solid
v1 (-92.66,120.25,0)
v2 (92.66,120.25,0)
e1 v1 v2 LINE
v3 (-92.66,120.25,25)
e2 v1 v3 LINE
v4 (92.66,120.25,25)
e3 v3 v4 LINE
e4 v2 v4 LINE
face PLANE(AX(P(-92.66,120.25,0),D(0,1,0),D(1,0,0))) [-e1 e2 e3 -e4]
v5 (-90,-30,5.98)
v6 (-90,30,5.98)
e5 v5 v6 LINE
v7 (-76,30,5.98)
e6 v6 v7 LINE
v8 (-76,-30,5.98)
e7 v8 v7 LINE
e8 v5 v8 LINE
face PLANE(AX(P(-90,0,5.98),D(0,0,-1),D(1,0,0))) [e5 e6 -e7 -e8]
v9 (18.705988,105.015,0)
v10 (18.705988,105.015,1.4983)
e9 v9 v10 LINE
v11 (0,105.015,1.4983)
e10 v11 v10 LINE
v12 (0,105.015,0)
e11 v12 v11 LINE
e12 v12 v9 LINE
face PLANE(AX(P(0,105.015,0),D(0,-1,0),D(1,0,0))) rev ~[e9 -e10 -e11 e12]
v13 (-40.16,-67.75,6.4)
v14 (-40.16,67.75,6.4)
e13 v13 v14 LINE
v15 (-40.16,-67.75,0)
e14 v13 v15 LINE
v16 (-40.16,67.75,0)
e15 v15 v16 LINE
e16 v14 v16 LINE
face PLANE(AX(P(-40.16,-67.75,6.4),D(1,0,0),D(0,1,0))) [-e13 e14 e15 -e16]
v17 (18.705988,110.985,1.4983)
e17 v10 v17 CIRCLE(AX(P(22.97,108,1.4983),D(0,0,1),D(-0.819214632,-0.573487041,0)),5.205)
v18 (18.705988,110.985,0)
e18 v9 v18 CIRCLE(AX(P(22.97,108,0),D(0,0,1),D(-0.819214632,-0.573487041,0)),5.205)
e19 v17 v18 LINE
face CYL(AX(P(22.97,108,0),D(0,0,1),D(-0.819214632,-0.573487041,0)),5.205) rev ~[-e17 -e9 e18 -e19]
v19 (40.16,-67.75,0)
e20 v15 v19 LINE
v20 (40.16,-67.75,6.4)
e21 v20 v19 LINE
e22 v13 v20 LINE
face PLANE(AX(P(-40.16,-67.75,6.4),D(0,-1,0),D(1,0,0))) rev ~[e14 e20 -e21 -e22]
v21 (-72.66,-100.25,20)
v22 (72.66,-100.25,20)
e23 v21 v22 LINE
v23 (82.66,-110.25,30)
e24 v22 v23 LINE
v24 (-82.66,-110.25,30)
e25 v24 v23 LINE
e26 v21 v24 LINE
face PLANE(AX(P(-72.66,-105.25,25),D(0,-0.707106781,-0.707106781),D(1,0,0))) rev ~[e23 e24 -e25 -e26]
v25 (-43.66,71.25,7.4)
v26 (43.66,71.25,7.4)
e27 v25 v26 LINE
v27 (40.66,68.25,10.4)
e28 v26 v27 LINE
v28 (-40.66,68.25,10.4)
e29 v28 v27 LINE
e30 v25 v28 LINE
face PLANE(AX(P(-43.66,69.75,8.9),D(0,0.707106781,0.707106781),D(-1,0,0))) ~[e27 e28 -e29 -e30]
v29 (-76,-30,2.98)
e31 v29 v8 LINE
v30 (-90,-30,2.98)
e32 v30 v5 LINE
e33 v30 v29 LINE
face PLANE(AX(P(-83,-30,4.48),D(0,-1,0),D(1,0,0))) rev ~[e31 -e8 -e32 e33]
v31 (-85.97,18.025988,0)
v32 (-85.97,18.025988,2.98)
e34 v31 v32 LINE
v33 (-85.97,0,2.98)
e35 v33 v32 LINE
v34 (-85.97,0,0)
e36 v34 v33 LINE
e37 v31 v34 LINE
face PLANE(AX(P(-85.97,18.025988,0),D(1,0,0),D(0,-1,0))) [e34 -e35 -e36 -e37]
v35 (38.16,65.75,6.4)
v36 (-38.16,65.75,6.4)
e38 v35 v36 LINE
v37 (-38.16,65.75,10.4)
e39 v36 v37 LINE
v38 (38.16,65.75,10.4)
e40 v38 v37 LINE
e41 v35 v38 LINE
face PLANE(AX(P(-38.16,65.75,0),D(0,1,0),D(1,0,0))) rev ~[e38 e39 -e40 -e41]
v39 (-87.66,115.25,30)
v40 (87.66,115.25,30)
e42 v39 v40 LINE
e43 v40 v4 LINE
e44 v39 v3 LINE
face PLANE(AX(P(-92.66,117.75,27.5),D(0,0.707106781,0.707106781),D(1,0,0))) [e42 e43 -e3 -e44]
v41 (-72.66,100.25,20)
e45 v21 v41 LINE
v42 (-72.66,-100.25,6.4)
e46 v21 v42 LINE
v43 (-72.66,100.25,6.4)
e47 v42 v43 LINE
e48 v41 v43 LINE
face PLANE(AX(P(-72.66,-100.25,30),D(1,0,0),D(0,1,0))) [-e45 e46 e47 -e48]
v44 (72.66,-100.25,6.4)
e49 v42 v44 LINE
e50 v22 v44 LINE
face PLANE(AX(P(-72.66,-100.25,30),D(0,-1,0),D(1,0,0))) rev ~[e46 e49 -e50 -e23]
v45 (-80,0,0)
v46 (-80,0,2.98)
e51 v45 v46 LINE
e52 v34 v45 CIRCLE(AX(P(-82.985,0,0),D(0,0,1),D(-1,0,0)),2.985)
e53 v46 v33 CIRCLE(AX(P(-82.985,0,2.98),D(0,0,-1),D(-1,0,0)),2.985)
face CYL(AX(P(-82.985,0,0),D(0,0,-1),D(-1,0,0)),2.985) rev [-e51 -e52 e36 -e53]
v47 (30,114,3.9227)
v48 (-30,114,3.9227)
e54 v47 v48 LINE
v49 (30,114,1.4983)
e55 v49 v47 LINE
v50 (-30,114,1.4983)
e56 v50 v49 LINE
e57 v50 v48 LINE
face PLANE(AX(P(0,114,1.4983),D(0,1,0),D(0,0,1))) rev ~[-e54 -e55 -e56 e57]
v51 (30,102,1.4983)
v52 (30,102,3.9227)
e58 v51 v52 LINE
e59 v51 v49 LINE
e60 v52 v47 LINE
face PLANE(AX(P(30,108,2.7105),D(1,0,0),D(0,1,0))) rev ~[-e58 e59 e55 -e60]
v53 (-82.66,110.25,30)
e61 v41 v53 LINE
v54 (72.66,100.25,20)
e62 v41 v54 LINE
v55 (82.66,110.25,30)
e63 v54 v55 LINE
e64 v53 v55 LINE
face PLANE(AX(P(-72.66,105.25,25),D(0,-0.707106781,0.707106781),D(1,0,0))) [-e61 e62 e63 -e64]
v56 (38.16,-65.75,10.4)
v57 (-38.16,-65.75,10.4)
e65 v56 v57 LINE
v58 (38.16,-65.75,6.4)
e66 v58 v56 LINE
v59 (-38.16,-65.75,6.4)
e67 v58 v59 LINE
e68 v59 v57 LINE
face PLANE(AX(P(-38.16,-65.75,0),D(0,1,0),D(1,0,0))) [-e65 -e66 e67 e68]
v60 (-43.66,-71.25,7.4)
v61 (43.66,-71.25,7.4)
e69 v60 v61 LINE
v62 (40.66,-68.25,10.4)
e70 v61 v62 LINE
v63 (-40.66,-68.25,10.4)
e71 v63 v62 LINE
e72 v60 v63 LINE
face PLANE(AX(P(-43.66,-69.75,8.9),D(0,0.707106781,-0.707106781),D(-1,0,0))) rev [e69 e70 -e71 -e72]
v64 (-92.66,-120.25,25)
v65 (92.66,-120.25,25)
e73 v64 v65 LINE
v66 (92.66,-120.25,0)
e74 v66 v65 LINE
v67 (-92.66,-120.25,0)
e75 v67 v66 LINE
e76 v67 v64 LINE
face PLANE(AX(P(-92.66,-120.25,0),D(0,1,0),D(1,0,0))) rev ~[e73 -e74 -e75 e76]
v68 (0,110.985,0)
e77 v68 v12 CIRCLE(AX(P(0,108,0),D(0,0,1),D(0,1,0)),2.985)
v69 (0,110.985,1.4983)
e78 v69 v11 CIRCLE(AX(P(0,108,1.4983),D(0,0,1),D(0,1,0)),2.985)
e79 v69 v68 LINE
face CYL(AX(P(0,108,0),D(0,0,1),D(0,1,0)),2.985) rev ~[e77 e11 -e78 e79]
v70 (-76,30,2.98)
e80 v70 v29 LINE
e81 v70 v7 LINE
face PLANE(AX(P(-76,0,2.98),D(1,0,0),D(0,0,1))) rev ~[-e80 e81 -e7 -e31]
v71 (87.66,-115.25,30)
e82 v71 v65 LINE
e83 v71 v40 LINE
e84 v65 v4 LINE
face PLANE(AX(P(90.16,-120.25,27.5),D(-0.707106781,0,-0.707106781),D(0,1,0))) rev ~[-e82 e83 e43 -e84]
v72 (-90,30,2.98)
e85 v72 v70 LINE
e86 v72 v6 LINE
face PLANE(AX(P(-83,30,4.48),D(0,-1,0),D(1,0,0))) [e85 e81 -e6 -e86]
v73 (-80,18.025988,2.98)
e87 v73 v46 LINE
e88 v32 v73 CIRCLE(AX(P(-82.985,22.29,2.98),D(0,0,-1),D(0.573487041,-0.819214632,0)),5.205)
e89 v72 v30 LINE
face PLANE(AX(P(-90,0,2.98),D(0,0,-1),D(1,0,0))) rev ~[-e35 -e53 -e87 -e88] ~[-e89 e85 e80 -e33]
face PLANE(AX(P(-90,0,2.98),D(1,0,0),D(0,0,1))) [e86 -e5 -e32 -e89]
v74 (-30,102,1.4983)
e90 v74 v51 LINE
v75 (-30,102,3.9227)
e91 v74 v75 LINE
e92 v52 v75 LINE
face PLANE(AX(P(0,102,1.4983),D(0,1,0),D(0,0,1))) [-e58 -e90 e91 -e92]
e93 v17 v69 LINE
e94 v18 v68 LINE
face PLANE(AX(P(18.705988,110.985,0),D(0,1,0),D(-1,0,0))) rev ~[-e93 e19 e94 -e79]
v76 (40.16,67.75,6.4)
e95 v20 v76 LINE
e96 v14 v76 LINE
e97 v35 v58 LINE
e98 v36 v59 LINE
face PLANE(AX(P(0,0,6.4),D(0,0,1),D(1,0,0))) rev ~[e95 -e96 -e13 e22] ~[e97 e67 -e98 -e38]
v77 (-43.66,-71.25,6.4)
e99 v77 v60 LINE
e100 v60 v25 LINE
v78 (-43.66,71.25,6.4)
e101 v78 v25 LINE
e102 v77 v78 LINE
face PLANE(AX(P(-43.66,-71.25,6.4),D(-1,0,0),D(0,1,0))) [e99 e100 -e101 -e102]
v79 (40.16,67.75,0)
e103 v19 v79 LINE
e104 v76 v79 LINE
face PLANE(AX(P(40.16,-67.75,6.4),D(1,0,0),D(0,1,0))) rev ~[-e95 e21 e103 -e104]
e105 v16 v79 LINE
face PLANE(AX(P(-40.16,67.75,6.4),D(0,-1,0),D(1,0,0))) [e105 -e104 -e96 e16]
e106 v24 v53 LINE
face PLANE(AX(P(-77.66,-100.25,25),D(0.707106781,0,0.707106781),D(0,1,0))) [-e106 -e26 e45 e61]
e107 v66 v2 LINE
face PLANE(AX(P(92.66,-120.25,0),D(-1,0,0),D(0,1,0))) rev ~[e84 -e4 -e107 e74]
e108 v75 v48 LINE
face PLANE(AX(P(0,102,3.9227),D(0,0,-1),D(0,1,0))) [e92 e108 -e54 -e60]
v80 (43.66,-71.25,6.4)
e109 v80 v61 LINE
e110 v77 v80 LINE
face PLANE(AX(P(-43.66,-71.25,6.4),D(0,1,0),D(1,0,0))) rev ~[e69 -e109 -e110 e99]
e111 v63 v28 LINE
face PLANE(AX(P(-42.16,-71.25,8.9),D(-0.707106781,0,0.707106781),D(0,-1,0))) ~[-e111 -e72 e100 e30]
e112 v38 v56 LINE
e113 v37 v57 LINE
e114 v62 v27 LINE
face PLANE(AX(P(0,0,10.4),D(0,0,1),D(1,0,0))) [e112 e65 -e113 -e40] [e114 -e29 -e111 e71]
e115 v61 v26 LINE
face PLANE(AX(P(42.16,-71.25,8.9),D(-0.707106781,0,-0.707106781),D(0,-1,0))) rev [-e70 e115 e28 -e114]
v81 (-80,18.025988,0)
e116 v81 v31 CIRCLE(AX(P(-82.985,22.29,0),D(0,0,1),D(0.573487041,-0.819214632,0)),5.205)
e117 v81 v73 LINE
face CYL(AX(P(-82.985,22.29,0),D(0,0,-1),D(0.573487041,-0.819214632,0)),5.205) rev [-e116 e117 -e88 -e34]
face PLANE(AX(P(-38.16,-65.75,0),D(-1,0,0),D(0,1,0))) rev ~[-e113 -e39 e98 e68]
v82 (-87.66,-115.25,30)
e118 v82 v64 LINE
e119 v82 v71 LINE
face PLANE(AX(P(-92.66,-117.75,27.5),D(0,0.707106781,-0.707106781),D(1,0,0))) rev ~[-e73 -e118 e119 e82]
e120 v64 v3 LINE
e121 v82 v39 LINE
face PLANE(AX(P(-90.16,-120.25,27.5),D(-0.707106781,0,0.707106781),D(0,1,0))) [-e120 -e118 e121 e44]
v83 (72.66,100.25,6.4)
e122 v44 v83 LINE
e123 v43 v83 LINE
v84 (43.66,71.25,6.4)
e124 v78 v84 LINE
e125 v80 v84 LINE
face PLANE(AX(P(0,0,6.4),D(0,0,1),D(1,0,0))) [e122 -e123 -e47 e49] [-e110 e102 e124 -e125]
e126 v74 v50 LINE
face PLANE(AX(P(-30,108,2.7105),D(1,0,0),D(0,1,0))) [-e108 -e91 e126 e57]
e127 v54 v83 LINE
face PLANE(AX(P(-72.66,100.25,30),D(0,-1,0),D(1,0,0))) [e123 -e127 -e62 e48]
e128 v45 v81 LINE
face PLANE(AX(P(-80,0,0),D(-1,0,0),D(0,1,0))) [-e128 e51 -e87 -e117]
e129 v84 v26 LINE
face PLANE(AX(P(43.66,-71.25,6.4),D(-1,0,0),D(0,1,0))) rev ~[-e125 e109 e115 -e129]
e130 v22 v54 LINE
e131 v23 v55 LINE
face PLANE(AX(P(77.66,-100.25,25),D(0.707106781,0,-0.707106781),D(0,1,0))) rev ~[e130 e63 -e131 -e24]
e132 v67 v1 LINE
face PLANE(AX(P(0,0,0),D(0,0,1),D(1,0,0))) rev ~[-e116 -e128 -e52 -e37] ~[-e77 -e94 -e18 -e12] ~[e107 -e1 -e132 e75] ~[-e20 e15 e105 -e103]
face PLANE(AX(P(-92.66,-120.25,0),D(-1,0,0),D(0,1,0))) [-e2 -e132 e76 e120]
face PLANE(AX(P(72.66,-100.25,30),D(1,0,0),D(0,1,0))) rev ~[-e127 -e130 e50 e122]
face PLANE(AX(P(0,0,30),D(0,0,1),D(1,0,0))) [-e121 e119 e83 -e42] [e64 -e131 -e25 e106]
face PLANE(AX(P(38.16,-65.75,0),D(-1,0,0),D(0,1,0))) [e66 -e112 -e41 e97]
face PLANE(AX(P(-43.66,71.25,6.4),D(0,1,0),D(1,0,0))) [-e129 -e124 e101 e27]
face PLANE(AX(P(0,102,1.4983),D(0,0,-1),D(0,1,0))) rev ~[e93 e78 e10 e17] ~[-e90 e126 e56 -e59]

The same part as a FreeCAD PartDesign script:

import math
import FreeCAD as App
import Part
import Sketcher

V = App.Vector


def edges_at(feature, points):
    """Names of the edges that pass closest to the given points."""
    edges = feature.Shape.Edges
    near = lambda p: min(range(len(edges)), key=lambda i: edges[i].distToShape(Part.Vertex(*p))[0])
    return sorted({f"Edge{near(p) + 1}" for p in points})


def add_polygon(sketch, points):
    """Adds a closed chain of lines whose ends are joined by coincident constraints."""
    first, n = sketch.GeometryCount, len(points)
    for a, b in zip(points, points[1:] + points[:1]):
        sketch.addGeometry(Part.LineSegment(App.Vector(*a, 0), App.Vector(*b, 0)), False)
    for i in range(n):
        sketch.addConstraint(Sketcher.Constraint("Coincident", first + i, 2, first + (i + 1) % n, 1))

doc = App.newDocument("Part")
params = doc.addObject("Spreadsheet::Sheet", "Params")
for row, (alias, value) in enumerate([
    ("sketch1_height", "240.5 mm"),
    ("sketch1_width", "185.32 mm"),
    ("pad1_length", "30 mm"),
    ("sketch2_height", "200.5 mm"),
    ("sketch2_width", "145.32 mm"),
    ("pocket1_length", "23.6 mm"),
    ("sketch3_height", "135.5 mm"),
    ("sketch3_width", "80.32 mm"),
    ("pocket2_length", "6.4 mm"),
    ("pocket3_length", "3 mm"),
    ("sketch5_width", "14 mm"),
    ("sketch5_height", "3 mm"),
    ("pocket4_length", "60 mm"),
    ("pocket5_length", "3 mm"),
    ("sketch7_width", "12 mm"),
    ("pocket6_length", "60 mm"),
    ("sketch8_height", "142.5 mm"),
    ("sketch8_width", "87.32 mm"),
    ("pad2_length", "4 mm"),
    ("sketch9_height", "131.5 mm"),
    ("sketch9_width", "76.32 mm"),
    ("chamfer_size", "10 mm"),
    ("chamfer2_size", "5 mm"),
    ("chamfer3_size", "3 mm"),
], start=1):
    params.set(f"A{row}", alias)
    params.set(f"B{row}", "=" + value)
    params.setAlias(f"B{row}", alias)

body = doc.addObject("PartDesign::Body", "Body")

sketch1 = doc.addObject("Sketcher::SketchObject", "Sketch")
body.addObject(sketch1)
sketch1.AttachmentSupport = (doc.XY_Plane, [""])
sketch1.MapMode = "FlatFace"
add_polygon(sketch1, [(-92.66, 120.25), (-92.66, -120.25), (92.66, -120.25), (92.66, 120.25)])
sketch1.addConstraint(Sketcher.Constraint("Vertical", 0))
sketch1.addConstraint(Sketcher.Constraint("Horizontal", 1))
sketch1.addConstraint(Sketcher.Constraint("Vertical", 2))
sketch1.addConstraint(Sketcher.Constraint("Horizontal", 3))
sketch1.addConstraint(Sketcher.Constraint("Symmetric", 0, 2, 2, 2, -1, 1))
sketch1.addConstraint(Sketcher.Constraint("DistanceY", 0, 2, 0, 1, 240.5))
sketch1.addConstraint(Sketcher.Constraint("DistanceX", 1, 1, 1, 2, 185.32))
sketch1.setExpression("Constraints[9]", "Params.sketch1_height")
sketch1.setExpression("Constraints[10]", "Params.sketch1_width")
pad1 = doc.addObject("PartDesign::Pad", "Pad")
body.addObject(pad1)
pad1.Profile = sketch1
pad1.setExpression("Length", "Params.pad1_length")

sketch2 = doc.addObject("Sketcher::SketchObject", "Sketch001")
body.addObject(sketch2)
sketch2.AttachmentSupport = (doc.XY_Plane, [""])
sketch2.MapMode = "FlatFace"
sketch2.AttachmentOffset = App.Placement(V(0, 0, 30), App.Rotation())
add_polygon(sketch2, [(-72.66, 100.25), (-72.66, -100.25), (72.66, -100.25), (72.66, 100.25)])
sketch2.addConstraint(Sketcher.Constraint("Vertical", 0))
sketch2.addConstraint(Sketcher.Constraint("Horizontal", 1))
sketch2.addConstraint(Sketcher.Constraint("Vertical", 2))
sketch2.addConstraint(Sketcher.Constraint("Horizontal", 3))
sketch2.addConstraint(Sketcher.Constraint("Symmetric", 0, 2, 2, 2, -1, 1))
sketch2.addConstraint(Sketcher.Constraint("DistanceY", 0, 2, 0, 1, 200.5))
sketch2.addConstraint(Sketcher.Constraint("DistanceX", 1, 1, 1, 2, 145.32))
sketch2.setExpression("Constraints[9]", "Params.sketch2_height")
sketch2.setExpression("Constraints[10]", "Params.sketch2_width")
pocket1 = doc.addObject("PartDesign::Pocket", "Pocket")
body.addObject(pocket1)
pocket1.Profile = sketch2
pocket1.setExpression("Length", "Params.pocket1_length")

sketch3 = doc.addObject("Sketcher::SketchObject", "Sketch002")
body.addObject(sketch3)
sketch3.AttachmentSupport = (doc.XY_Plane, [""])
sketch3.MapMode = "FlatFace"
sketch3.AttachmentOffset = App.Placement(V(0, 0, 6.4), App.Rotation())
add_polygon(sketch3, [(-40.16, 67.75), (-40.16, -67.75), (40.16, -67.75), (40.16, 67.75)])
sketch3.addConstraint(Sketcher.Constraint("Vertical", 0))
sketch3.addConstraint(Sketcher.Constraint("Horizontal", 1))
sketch3.addConstraint(Sketcher.Constraint("Vertical", 2))
sketch3.addConstraint(Sketcher.Constraint("Horizontal", 3))
sketch3.addConstraint(Sketcher.Constraint("Symmetric", 0, 2, 2, 2, -1, 1))
sketch3.addConstraint(Sketcher.Constraint("DistanceY", 0, 2, 0, 1, 135.5))
sketch3.addConstraint(Sketcher.Constraint("DistanceX", 1, 1, 1, 2, 80.32))
sketch3.setExpression("Constraints[9]", "Params.sketch3_height")
sketch3.setExpression("Constraints[10]", "Params.sketch3_width")
pocket2 = doc.addObject("PartDesign::Pocket", "Pocket001")
body.addObject(pocket2)
pocket2.Profile = sketch3
pocket2.setExpression("Length", "Params.pocket2_length")

sketch4 = doc.addObject("Sketcher::SketchObject", "Sketch003")
body.addObject(sketch4)
sketch4.AttachmentSupport = (doc.XY_Plane, [""])
sketch4.MapMode = "FlatFace"
sketch4.addGeometry(Part.ArcOfCircle(Part.Circle(V(-82.985, 0, 0), V(0, 0, 1), 2.985), math.radians(180), math.radians(360)), False)
sketch4.addGeometry(Part.LineSegment(V(-80, 0, 0), V(-80, 18.025988, 0)), False)
sketch4.addGeometry(Part.ArcOfCircle(Part.Circle(V(-82.985, 22.29, 0), V(0, 0, 1), 5.205), math.radians(-55.006253), math.radians(235.006253)), False)
sketch4.addGeometry(Part.LineSegment(V(-85.97, 18.025988, 0), V(-85.97, 0, 0)), False)
sketch4.addConstraint(Sketcher.Constraint("Tangent", 0, 2, 1, 1))
sketch4.addConstraint(Sketcher.Constraint("Coincident", 1, 2, 2, 1))
sketch4.addConstraint(Sketcher.Constraint("Coincident", 2, 2, 3, 1))
sketch4.addConstraint(Sketcher.Constraint("Tangent", 3, 2, 0, 1))
sketch4.addConstraint(Sketcher.Constraint("Vertical", 1))
sketch4.addConstraint(Sketcher.Constraint("Vertical", 3))
sketch4.addConstraint(Sketcher.Constraint("PointOnObject", 0, 3, -1))
sketch4.addConstraint(Sketcher.Constraint("Horizontal", 1, 2, 2, 2))
sketch4.addConstraint(Sketcher.Constraint("DistanceX", 0, 2, -1, 1, 80.0))
sketch4.addConstraint(Sketcher.Constraint("Radius", 0, 2.985))
sketch4.addConstraint(Sketcher.Constraint("Radius", 2, 5.205))
sketch4.addConstraint(Sketcher.Constraint("DistanceY", -1, 1, 2, 3, 22.29))
pocket3 = doc.addObject("PartDesign::Pocket", "Pocket002")
body.addObject(pocket3)
pocket3.Profile = sketch4
pocket3.setExpression("Length", "Params.pocket3_length")
pocket3.Reversed = True

sketch5 = doc.addObject("Sketcher::SketchObject", "Sketch004")
body.addObject(sketch5)
sketch5.AttachmentSupport = (doc.XZ_Plane, [""])
sketch5.MapMode = "FlatFace"
add_polygon(sketch5, [(-90, 5.98), (-90, 2.98), (-76, 2.98), (-76, 5.98)])
sketch5.addConstraint(Sketcher.Constraint("Vertical", 0))
sketch5.addConstraint(Sketcher.Constraint("Horizontal", 1))
sketch5.addConstraint(Sketcher.Constraint("Vertical", 2))
sketch5.addConstraint(Sketcher.Constraint("Horizontal", 3))
sketch5.addConstraint(Sketcher.Constraint("DistanceX", 1, 1, 1, 2, 14.0))
sketch5.addConstraint(Sketcher.Constraint("DistanceY", 0, 2, 0, 1, 3.0))
sketch5.addConstraint(Sketcher.Constraint("DistanceX", 0, 2, -1, 1, 90.0))
sketch5.addConstraint(Sketcher.Constraint("DistanceY", -1, 1, 0, 2, 2.98))
sketch5.setExpression("Constraints[8]", "Params.sketch5_width")
sketch5.setExpression("Constraints[9]", "Params.sketch5_height")
pocket4 = doc.addObject("PartDesign::Pocket", "Pocket003")
body.addObject(pocket4)
pocket4.Profile = sketch5
pocket4.setExpression("Length", "Params.pocket4_length")
pocket4.Midplane = True

sketch6 = doc.addObject("Sketcher::SketchObject", "Sketch005")
body.addObject(sketch6)
sketch6.AttachmentSupport = (doc.XY_Plane, [""])
sketch6.MapMode = "FlatFace"
sketch6.addGeometry(Part.ArcOfCircle(Part.Circle(V(0, 108, 0), V(0, 0, 1), 2.985), math.radians(90), math.radians(270)), False)
sketch6.addGeometry(Part.LineSegment(V(0, 105.015, 0), V(18.705988, 105.015, 0)), False)
sketch6.addGeometry(Part.ArcOfCircle(Part.Circle(V(22.97, 108, 0), V(0, 0, 1), 5.205), math.radians(-145.006253), math.radians(145.006253)), False)
sketch6.addGeometry(Part.LineSegment(V(18.705988, 110.985, 0), V(0, 110.985, 0)), False)
sketch6.addConstraint(Sketcher.Constraint("Tangent", 0, 2, 1, 1))
sketch6.addConstraint(Sketcher.Constraint("Coincident", 1, 2, 2, 1))
sketch6.addConstraint(Sketcher.Constraint("Coincident", 2, 2, 3, 1))
sketch6.addConstraint(Sketcher.Constraint("Tangent", 3, 2, 0, 1))
sketch6.addConstraint(Sketcher.Constraint("Horizontal", 1))
sketch6.addConstraint(Sketcher.Constraint("Horizontal", 3))
sketch6.addConstraint(Sketcher.Constraint("PointOnObject", 0, 3, -2))
sketch6.addConstraint(Sketcher.Constraint("Horizontal", 0, 3, 2, 3))
sketch6.addConstraint(Sketcher.Constraint("DistanceY", -1, 1, 0, 3, 108.0))
sketch6.addConstraint(Sketcher.Constraint("Radius", 0, 2.985))
sketch6.addConstraint(Sketcher.Constraint("Radius", 2, 5.205))
sketch6.addConstraint(Sketcher.Constraint("DistanceX", -1, 1, 2, 3, 22.97))
pocket5 = doc.addObject("PartDesign::Pocket", "Pocket004")
body.addObject(pocket5)
pocket5.Profile = sketch6
pocket5.setExpression("Length", "Params.pocket5_length")
pocket5.Midplane = True

sketch7 = doc.addObject("Sketcher::SketchObject", "Sketch006")
body.addObject(sketch7)
sketch7.AttachmentSupport = (doc.YZ_Plane, [""])
sketch7.MapMode = "FlatFace"
add_polygon(sketch7, [(102, 3.9227), (102, 1.4983), (114, 1.4983), (114, 3.9227)])
sketch7.addConstraint(Sketcher.Constraint("Vertical", 0))
sketch7.addConstraint(Sketcher.Constraint("Horizontal", 1))
sketch7.addConstraint(Sketcher.Constraint("Vertical", 2))
sketch7.addConstraint(Sketcher.Constraint("Horizontal", 3))
sketch7.addConstraint(Sketcher.Constraint("DistanceX", 1, 1, 1, 2, 12.0))
sketch7.addConstraint(Sketcher.Constraint("DistanceX", -1, 1, 0, 2, 102.0))
sketch7.addConstraint(Sketcher.Constraint("DistanceY", 0, 2, 0, 1, 2.4244))
sketch7.addConstraint(Sketcher.Constraint("DistanceY", -1, 1, 0, 2, 1.4983))
sketch7.setExpression("Constraints[8]", "Params.sketch7_width")
pocket6 = doc.addObject("PartDesign::Pocket", "Pocket005")
body.addObject(pocket6)
pocket6.Profile = sketch7
pocket6.setExpression("Length", "Params.pocket6_length")
pocket6.Midplane = True

sketch8 = doc.addObject("Sketcher::SketchObject", "Sketch007")
body.addObject(sketch8)
sketch8.AttachmentSupport = (doc.XY_Plane, [""])
sketch8.MapMode = "FlatFace"
sketch8.AttachmentOffset = App.Placement(V(0, 0, 6.4), App.Rotation())
add_polygon(sketch8, [(-43.66, 71.25), (-43.66, -71.25), (43.66, -71.25), (43.66, 71.25)])
sketch8.addConstraint(Sketcher.Constraint("Vertical", 0))
sketch8.addConstraint(Sketcher.Constraint("Horizontal", 1))
sketch8.addConstraint(Sketcher.Constraint("Vertical", 2))
sketch8.addConstraint(Sketcher.Constraint("Horizontal", 3))
sketch8.addConstraint(Sketcher.Constraint("Symmetric", 0, 2, 2, 2, -1, 1))
sketch8.addConstraint(Sketcher.Constraint("DistanceY", 0, 2, 0, 1, 142.5))
sketch8.addConstraint(Sketcher.Constraint("DistanceX", 1, 1, 1, 2, 87.32))
sketch8.setExpression("Constraints[9]", "Params.sketch8_height")
sketch8.setExpression("Constraints[10]", "Params.sketch8_width")
pad2 = doc.addObject("PartDesign::Pad", "Pad001")
body.addObject(pad2)
pad2.Profile = sketch8
pad2.setExpression("Length", "Params.pad2_length")

sketch9 = doc.addObject("Sketcher::SketchObject", "Sketch008")
body.addObject(sketch9)
sketch9.AttachmentSupport = (doc.XY_Plane, [""])
sketch9.MapMode = "FlatFace"
add_polygon(sketch9, [(-38.16, 65.75), (-38.16, -65.75), (38.16, -65.75), (38.16, 65.75)])
sketch9.addConstraint(Sketcher.Constraint("Vertical", 0))
sketch9.addConstraint(Sketcher.Constraint("Horizontal", 1))
sketch9.addConstraint(Sketcher.Constraint("Vertical", 2))
sketch9.addConstraint(Sketcher.Constraint("Horizontal", 3))
sketch9.addConstraint(Sketcher.Constraint("Symmetric", 0, 2, 2, 2, -1, 1))
sketch9.addConstraint(Sketcher.Constraint("DistanceY", 0, 2, 0, 1, 131.5))
sketch9.addConstraint(Sketcher.Constraint("DistanceX", 1, 1, 1, 2, 76.32))
sketch9.setExpression("Constraints[9]", "Params.sketch9_height")
sketch9.setExpression("Constraints[10]", "Params.sketch9_width")
pocket7 = doc.addObject("PartDesign::Pocket", "Pocket006")
body.addObject(pocket7)
pocket7.Profile = sketch9
pocket7.Type = "ThroughAll"
pocket7.Midplane = True
doc.recompute()

chamfer = doc.addObject("PartDesign::Chamfer", "Chamfer")
body.addObject(chamfer)
chamfer.Base = (pocket7, edges_at(pocket7, [
    (-72.66, 0, 30),
    (0, 100.25, 30),
    (72.66, 0, 30),
    (0, -100.25, 30),
]))
chamfer.setExpression("Size", "Params.chamfer_size")
doc.recompute()

chamfer2 = doc.addObject("PartDesign::Chamfer", "Chamfer001")
body.addObject(chamfer2)
chamfer2.Base = (chamfer, edges_at(chamfer, [
    (0, 120.25, 30),
    (-92.66, 0, 30),
    (0, -120.25, 30),
    (92.66, 0, 30),
]))
chamfer2.setExpression("Size", "Params.chamfer2_size")
doc.recompute()

chamfer3 = doc.addObject("PartDesign::Chamfer", "Chamfer002")
body.addObject(chamfer3)
chamfer3.Base = (chamfer2, edges_at(chamfer2, [
    (-43.66, 0, 10.4),
    (0, -71.25, 10.4),
    (43.66, 0, 10.4),
    (0, 71.25, 10.4),
]))
chamfer3.setExpression("Size", "Params.chamfer3_size")

doc.recompute()
